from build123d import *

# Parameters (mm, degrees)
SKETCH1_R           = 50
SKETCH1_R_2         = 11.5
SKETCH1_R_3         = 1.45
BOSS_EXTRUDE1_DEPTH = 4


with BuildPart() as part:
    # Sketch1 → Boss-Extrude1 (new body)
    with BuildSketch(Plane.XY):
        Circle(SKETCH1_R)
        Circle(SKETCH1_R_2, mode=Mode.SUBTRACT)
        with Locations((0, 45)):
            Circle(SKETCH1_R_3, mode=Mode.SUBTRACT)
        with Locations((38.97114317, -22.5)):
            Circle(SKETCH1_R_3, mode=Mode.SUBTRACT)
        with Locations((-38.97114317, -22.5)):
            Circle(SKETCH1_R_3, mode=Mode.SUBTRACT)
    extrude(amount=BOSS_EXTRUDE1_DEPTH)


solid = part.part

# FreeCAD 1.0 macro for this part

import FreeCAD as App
import Part
import Sketcher

V = App.Vector
Q = App.Units.Quantity

doc = App.newDocument("Part")
body = doc.addObject("PartDesign::Body", "Body")

# Sketch on XY plane
sketch1 = body.newObject("Sketcher::SketchObject", "Sketch")
sketch1.AttachmentSupport = (doc.getObject("XY_Plane"), [""])
sketch1.MapMode = "FlatFace"
sketch1.addGeometry(Part.Circle(V(0, 0, 0), V(0, 0, 1), 50), False)
sketch1.addGeometry(Part.Circle(V(-39, -22.5, 0), V(0, 0, 1), 1.4), False)
sketch1.addGeometry(Part.Circle(V(39, -22.5, 0), V(0, 0, 1), 1.4), False)
sketch1.addGeometry(Part.Circle(V(0, 0, 0), V(0, 0, 1), 11.5), False)
sketch1.addGeometry(Part.Circle(V(0, 45, 0), V(0, 0, 1), 1.4), False)
sketch1.addConstraint(Sketcher.Constraint("Coincident", 0, 3, -1, 1))
sketch1.addConstraint(Sketcher.Constraint("Coincident", 3, 3, -1, 1))
sketch1.addConstraint(Sketcher.Constraint("Equal", 1, 2))
sketch1.addConstraint(Sketcher.Constraint("Equal", 2, 4))
sketch1.addConstraint(Sketcher.Constraint("Symmetric", 1, 3, 2, 3, -2))
sketch1.addConstraint(Sketcher.Constraint("PointOnObject", 4, 3, -2))
sketch1.addConstraint(Sketcher.Constraint("Diameter", 0, Q("100 mm")))
sketch1.addConstraint(Sketcher.Constraint("Diameter", 3, Q("23 mm")))
sketch1.addConstraint(Sketcher.Constraint("Diameter", 1, Q("2.9 mm")))
sketch1.addConstraint(Sketcher.Constraint("DistanceY", -1, 1, 4, 3, Q("45 mm")))
sketch1.addConstraint(Sketcher.Constraint("DistanceY", 1, 3, -1, 1, Q("22.5 mm")))
sketch1.addConstraint(Sketcher.Constraint("DistanceX", 1, 3, -1, 1, Q("38.971143 mm")))
pad1 = body.newObject("PartDesign::Pad", "Pad")
pad1.Profile = sketch1
pad1.Length = 4

doc.recompute()
